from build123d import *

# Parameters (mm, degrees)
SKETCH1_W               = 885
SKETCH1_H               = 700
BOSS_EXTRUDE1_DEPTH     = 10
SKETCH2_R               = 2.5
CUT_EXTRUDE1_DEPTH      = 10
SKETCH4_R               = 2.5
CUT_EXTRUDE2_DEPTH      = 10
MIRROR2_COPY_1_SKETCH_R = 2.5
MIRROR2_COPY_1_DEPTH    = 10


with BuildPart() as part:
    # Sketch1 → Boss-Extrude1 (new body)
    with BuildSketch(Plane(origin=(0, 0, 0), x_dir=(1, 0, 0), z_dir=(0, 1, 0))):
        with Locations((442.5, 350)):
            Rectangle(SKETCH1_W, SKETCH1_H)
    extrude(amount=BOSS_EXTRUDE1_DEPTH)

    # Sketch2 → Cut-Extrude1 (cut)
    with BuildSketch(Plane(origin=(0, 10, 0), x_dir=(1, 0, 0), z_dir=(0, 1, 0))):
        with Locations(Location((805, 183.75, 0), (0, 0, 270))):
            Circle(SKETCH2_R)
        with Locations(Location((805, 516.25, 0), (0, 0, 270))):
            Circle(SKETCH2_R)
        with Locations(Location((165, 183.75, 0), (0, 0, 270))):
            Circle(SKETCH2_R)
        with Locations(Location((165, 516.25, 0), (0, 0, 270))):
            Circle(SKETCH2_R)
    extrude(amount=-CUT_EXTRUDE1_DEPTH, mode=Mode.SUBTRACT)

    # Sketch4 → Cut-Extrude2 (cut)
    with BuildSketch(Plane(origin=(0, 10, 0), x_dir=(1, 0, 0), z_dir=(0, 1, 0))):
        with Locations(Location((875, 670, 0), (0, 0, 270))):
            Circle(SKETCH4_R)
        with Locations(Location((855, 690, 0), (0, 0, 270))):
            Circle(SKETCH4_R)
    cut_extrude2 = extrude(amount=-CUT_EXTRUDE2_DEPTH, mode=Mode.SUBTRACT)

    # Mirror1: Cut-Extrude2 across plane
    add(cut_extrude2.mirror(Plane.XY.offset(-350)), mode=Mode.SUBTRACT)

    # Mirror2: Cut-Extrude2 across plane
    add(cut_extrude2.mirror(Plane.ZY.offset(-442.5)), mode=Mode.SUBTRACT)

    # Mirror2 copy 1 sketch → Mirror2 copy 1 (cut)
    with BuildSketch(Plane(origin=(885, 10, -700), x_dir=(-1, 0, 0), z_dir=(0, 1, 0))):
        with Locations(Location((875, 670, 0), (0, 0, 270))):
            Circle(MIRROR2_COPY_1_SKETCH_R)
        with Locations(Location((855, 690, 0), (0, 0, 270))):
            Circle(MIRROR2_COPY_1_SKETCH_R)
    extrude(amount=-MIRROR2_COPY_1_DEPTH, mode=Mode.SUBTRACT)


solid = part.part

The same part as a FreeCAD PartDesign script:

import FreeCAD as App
import Part
import Sketcher

V = App.Vector


def add_polygon(sketch, points):
    """Adds a closed chain of lines whose ends are joined by coincident constraints."""
    first, n = sketch.GeometryCount, len(points)
    for a, b in zip(points, points[1:] + points[:1]):
        sketch.addGeometry(Part.LineSegment(App.Vector(*a, 0), App.Vector(*b, 0)), False)
    for i in range(n):
        sketch.addConstraint(Sketcher.Constraint("Coincident", first + i, 2, first + (i + 1) % n, 1))

doc = App.newDocument("Part")
body = doc.addObject("PartDesign::Body", "Body")

# Sketch on XZ plane
sketch1 = body.newObject("Sketcher::SketchObject", "Sketch")
sketch1.AttachmentSupport = (doc.getObject("XZ_Plane"), [""])
sketch1.MapMode = "FlatFace"
add_polygon(sketch1, [(0, -700), (0, 0), (885, 0), (885, -700)])  # lines 0-3
sketch1.addConstraint(Sketcher.Constraint("Vertical", 0))
sketch1.addConstraint(Sketcher.Constraint("Horizontal", 1))
sketch1.addConstraint(Sketcher.Constraint("Vertical", 2))
sketch1.addConstraint(Sketcher.Constraint("Horizontal", 3))
sketch1.addConstraint(Sketcher.Constraint("Coincident", 0, 2, -1, 1))
sketch1.addConstraint(Sketcher.Constraint("DistanceX", 1, 1, 1, 2, 885.0))
sketch1.addConstraint(Sketcher.Constraint("DistanceY", 0, 1, 0, 2, 700.0))
pad1 = body.newObject("PartDesign::Pad", "Pad")
pad1.Profile = sketch1
pad1.Length = 10
pad1.Reversed = True

# Sketch on XZ plane
sketch2 = body.newObject("Sketcher::SketchObject", "Sketch001")
sketch2.AttachmentSupport = (doc.getObject("XZ_Plane"), [""])
sketch2.MapMode = "FlatFace"
sketch2.AttachmentOffset = App.Placement(V(0, 0, -10), App.Rotation())
sketch2.addGeometry(Part.Circle(V(805, -183.75, 0), V(0, 0, 1), 2.5), False)
sketch2.addGeometry(Part.Circle(V(805, -516.25, 0), V(0, 0, 1), 2.5), False)
sketch2.addGeometry(Part.Circle(V(165, -183.75, 0), V(0, 0, 1), 2.5), False)
sketch2.addGeometry(Part.Circle(V(165, -516.25, 0), V(0, 0, 1), 2.5), False)
sketch2.addConstraint(Sketcher.Constraint("Equal", 0, 1))
sketch2.addConstraint(Sketcher.Constraint("Equal", 1, 2))
sketch2.addConstraint(Sketcher.Constraint("Equal", 2, 3))
sketch2.addConstraint(Sketcher.Constraint("Horizontal", 0, 3, 2, 3))
sketch2.addConstraint(Sketcher.Constraint("Horizontal", 1, 3, 3, 3))
sketch2.addConstraint(Sketcher.Constraint("Vertical", 0, 3, 1, 3))
sketch2.addConstraint(Sketcher.Constraint("Vertical", 2, 3, 3, 3))
sketch2.addConstraint(Sketcher.Constraint("Diameter", 0, 5.0))
sketch2.addConstraint(Sketcher.Constraint("DistanceX", -1, 1, 0, 3, 805.0))
sketch2.addConstraint(Sketcher.Constraint("DistanceX", -1, 1, 2, 3, 165.0))
sketch2.addConstraint(Sketcher.Constraint("DistanceY", 1, 3, 0, 3, 332.5))
sketch2.addConstraint(Sketcher.Constraint("DistanceY", 0, 3, -1, 1, 183.75))
pocket1 = body.newObject("PartDesign::Pocket", "Pocket")
pocket1.Profile = sketch2
pocket1.Length = 10
pocket1.Reversed = True

# Sketch on XZ plane
sketch3 = body.newObject("Sketcher::SketchObject", "Sketch002")
sketch3.AttachmentSupport = (doc.getObject("XZ_Plane"), [""])
sketch3.MapMode = "FlatFace"
sketch3.AttachmentOffset = App.Placement(V(0, 0, -10), App.Rotation())
sketch3.addGeometry(Part.Circle(V(875, -670, 0), V(0, 0, 1), 2.5), False)
sketch3.addGeometry(Part.Circle(V(855, -690, 0), V(0, 0, 1), 2.5), False)
sketch3.addConstraint(Sketcher.Constraint("Equal", 0, 1))
sketch3.addConstraint(Sketcher.Constraint("Diameter", 0, 5.0))
sketch3.addConstraint(Sketcher.Constraint("DistanceX", -1, 1, 0, 3, 875.0))
sketch3.addConstraint(Sketcher.Constraint("DistanceY", 0, 3, -1, 1, 670.0))
sketch3.addConstraint(Sketcher.Constraint("DistanceX", -1, 1, 1, 3, 855.0))
sketch3.addConstraint(Sketcher.Constraint("DistanceY", 1, 3, -1, 1, 690.0))
pocket2 = body.newObject("PartDesign::Pocket", "Pocket001")
pocket2.Profile = sketch3
pocket2.Length = 10
pocket2.Reversed = True
doc.recompute()

datumplane = body.newObject("PartDesign::Plane", "DatumPlane")
datumplane.AttachmentSupport = (doc.getObject("XY_Plane"), [""])
datumplane.MapMode = "FlatFace"
datumplane.AttachmentOffset = App.Placement(V(0, 0, -350), App.Rotation())
mirrored = body.newObject("PartDesign::Mirrored", "Mirrored")
mirrored.Originals = [pocket2]
mirrored.MirrorPlane = (datumplane, [""])
body.Tip = mirrored
doc.recompute()

datumplane2 = body.newObject("PartDesign::Plane", "DatumPlane001")
datumplane2.AttachmentSupport = (doc.getObject("YZ_Plane"), [""])
datumplane2.MapMode = "FlatFace"
datumplane2.AttachmentOffset = App.Placement(V(0, 0, 442.5), App.Rotation())
mirrored2 = body.newObject("PartDesign::Mirrored", "Mirrored001")
mirrored2.Originals = [pocket2]
mirrored2.MirrorPlane = (datumplane2, [""])
body.Tip = mirrored2

# Sketch on XZ plane
sketch4 = body.newObject("Sketcher::SketchObject", "Sketch003")
sketch4.AttachmentSupport = (doc.getObject("XZ_Plane"), [""])
sketch4.MapMode = "FlatFace"
sketch4.AttachmentOffset = App.Placement(V(0, 0, -10), App.Rotation())
sketch4.addGeometry(Part.Circle(V(10, -30, 0), V(0, 0, 1), 2.5), False)
sketch4.addGeometry(Part.Circle(V(30, -10, 0), V(0, 0, 1), 2.5), False)
sketch4.addConstraint(Sketcher.Constraint("Equal", 0, 1))
sketch4.addConstraint(Sketcher.Constraint("Diameter", 0, 5.0))
sketch4.addConstraint(Sketcher.Constraint("DistanceX", -1, 1, 0, 3, 10.0))
sketch4.addConstraint(Sketcher.Constraint("DistanceY", 0, 3, -1, 1, 30.0))
sketch4.addConstraint(Sketcher.Constraint("DistanceX", -1, 1, 1, 3, 30.0))
sketch4.addConstraint(Sketcher.Constraint("DistanceY", 1, 3, -1, 1, 10.0))
pocket3 = body.newObject("PartDesign::Pocket", "Pocket002")
pocket3.Profile = sketch4
pocket3.Length = 10
pocket3.Reversed = True

doc.recompute()
